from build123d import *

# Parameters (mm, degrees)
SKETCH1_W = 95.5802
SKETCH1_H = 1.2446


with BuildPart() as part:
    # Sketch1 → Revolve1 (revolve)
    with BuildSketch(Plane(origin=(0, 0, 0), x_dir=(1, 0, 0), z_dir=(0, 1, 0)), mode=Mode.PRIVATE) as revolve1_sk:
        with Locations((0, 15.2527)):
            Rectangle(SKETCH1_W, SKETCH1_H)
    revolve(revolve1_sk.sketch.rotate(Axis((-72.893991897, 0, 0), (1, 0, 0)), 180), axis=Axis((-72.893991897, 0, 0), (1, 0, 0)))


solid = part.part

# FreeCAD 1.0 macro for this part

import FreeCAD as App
import Part
import Sketcher
Q = App.Units.Quantity


def add_polygon(sketch, points):
    """Adds a closed chain of lines whose ends are joined by coincident constraints."""
    first, n = sketch.GeometryCount, len(points)
    for a, b in zip(points, points[1:] + points[:1]):
        sketch.addGeometry(Part.LineSegment(App.Vector(*a, 0), App.Vector(*b, 0)), False)
    for i in range(n):
        sketch.addConstraint(Sketcher.Constraint("Coincident", first + i, 2, first + (i + 1) % n, 1))

doc = App.newDocument("Part")
body = doc.addObject("PartDesign::Body", "Body")

sketch1 = body.newObject("Sketcher::SketchObject", "Sketch")
sketch1.AttachmentSupport = (doc.getObject("XZ_Plane"), [""])
sketch1.MapMode = "FlatFace"
add_polygon(sketch1, [(-47.8, -15.9), (-47.8, -14.6), (47.8, -14.6), (47.8, -15.9)])
sketch1.addConstraint(Sketcher.Constraint("Vertical", 0))
sketch1.addConstraint(Sketcher.Constraint("Horizontal", 1))
sketch1.addConstraint(Sketcher.Constraint("Vertical", 2))
sketch1.addConstraint(Sketcher.Constraint("Horizontal", 3))
sketch1.addConstraint(Sketcher.Constraint("DistanceX", 1, 1, 1, 2, Q("3.763 in")))
sketch1.addConstraint(Sketcher.Constraint("DistanceY", 0, 1, 0, 2, Q("0.049 in")))
sketch1.addConstraint(Sketcher.Constraint("DistanceY", 0, 2, -1, 1, Q("0.576 in")))
sketch1.addConstraint(Sketcher.Constraint("DistanceX", 0, 2, -1, 1, Q("1.8815 in")))
revolution = body.newObject("PartDesign::Revolution", "Revolution")
revolution.Profile = sketch1
revolution.ReferenceAxis = (sketch1, ["H_Axis"])
revolution.Angle = 360

doc.recompute()
